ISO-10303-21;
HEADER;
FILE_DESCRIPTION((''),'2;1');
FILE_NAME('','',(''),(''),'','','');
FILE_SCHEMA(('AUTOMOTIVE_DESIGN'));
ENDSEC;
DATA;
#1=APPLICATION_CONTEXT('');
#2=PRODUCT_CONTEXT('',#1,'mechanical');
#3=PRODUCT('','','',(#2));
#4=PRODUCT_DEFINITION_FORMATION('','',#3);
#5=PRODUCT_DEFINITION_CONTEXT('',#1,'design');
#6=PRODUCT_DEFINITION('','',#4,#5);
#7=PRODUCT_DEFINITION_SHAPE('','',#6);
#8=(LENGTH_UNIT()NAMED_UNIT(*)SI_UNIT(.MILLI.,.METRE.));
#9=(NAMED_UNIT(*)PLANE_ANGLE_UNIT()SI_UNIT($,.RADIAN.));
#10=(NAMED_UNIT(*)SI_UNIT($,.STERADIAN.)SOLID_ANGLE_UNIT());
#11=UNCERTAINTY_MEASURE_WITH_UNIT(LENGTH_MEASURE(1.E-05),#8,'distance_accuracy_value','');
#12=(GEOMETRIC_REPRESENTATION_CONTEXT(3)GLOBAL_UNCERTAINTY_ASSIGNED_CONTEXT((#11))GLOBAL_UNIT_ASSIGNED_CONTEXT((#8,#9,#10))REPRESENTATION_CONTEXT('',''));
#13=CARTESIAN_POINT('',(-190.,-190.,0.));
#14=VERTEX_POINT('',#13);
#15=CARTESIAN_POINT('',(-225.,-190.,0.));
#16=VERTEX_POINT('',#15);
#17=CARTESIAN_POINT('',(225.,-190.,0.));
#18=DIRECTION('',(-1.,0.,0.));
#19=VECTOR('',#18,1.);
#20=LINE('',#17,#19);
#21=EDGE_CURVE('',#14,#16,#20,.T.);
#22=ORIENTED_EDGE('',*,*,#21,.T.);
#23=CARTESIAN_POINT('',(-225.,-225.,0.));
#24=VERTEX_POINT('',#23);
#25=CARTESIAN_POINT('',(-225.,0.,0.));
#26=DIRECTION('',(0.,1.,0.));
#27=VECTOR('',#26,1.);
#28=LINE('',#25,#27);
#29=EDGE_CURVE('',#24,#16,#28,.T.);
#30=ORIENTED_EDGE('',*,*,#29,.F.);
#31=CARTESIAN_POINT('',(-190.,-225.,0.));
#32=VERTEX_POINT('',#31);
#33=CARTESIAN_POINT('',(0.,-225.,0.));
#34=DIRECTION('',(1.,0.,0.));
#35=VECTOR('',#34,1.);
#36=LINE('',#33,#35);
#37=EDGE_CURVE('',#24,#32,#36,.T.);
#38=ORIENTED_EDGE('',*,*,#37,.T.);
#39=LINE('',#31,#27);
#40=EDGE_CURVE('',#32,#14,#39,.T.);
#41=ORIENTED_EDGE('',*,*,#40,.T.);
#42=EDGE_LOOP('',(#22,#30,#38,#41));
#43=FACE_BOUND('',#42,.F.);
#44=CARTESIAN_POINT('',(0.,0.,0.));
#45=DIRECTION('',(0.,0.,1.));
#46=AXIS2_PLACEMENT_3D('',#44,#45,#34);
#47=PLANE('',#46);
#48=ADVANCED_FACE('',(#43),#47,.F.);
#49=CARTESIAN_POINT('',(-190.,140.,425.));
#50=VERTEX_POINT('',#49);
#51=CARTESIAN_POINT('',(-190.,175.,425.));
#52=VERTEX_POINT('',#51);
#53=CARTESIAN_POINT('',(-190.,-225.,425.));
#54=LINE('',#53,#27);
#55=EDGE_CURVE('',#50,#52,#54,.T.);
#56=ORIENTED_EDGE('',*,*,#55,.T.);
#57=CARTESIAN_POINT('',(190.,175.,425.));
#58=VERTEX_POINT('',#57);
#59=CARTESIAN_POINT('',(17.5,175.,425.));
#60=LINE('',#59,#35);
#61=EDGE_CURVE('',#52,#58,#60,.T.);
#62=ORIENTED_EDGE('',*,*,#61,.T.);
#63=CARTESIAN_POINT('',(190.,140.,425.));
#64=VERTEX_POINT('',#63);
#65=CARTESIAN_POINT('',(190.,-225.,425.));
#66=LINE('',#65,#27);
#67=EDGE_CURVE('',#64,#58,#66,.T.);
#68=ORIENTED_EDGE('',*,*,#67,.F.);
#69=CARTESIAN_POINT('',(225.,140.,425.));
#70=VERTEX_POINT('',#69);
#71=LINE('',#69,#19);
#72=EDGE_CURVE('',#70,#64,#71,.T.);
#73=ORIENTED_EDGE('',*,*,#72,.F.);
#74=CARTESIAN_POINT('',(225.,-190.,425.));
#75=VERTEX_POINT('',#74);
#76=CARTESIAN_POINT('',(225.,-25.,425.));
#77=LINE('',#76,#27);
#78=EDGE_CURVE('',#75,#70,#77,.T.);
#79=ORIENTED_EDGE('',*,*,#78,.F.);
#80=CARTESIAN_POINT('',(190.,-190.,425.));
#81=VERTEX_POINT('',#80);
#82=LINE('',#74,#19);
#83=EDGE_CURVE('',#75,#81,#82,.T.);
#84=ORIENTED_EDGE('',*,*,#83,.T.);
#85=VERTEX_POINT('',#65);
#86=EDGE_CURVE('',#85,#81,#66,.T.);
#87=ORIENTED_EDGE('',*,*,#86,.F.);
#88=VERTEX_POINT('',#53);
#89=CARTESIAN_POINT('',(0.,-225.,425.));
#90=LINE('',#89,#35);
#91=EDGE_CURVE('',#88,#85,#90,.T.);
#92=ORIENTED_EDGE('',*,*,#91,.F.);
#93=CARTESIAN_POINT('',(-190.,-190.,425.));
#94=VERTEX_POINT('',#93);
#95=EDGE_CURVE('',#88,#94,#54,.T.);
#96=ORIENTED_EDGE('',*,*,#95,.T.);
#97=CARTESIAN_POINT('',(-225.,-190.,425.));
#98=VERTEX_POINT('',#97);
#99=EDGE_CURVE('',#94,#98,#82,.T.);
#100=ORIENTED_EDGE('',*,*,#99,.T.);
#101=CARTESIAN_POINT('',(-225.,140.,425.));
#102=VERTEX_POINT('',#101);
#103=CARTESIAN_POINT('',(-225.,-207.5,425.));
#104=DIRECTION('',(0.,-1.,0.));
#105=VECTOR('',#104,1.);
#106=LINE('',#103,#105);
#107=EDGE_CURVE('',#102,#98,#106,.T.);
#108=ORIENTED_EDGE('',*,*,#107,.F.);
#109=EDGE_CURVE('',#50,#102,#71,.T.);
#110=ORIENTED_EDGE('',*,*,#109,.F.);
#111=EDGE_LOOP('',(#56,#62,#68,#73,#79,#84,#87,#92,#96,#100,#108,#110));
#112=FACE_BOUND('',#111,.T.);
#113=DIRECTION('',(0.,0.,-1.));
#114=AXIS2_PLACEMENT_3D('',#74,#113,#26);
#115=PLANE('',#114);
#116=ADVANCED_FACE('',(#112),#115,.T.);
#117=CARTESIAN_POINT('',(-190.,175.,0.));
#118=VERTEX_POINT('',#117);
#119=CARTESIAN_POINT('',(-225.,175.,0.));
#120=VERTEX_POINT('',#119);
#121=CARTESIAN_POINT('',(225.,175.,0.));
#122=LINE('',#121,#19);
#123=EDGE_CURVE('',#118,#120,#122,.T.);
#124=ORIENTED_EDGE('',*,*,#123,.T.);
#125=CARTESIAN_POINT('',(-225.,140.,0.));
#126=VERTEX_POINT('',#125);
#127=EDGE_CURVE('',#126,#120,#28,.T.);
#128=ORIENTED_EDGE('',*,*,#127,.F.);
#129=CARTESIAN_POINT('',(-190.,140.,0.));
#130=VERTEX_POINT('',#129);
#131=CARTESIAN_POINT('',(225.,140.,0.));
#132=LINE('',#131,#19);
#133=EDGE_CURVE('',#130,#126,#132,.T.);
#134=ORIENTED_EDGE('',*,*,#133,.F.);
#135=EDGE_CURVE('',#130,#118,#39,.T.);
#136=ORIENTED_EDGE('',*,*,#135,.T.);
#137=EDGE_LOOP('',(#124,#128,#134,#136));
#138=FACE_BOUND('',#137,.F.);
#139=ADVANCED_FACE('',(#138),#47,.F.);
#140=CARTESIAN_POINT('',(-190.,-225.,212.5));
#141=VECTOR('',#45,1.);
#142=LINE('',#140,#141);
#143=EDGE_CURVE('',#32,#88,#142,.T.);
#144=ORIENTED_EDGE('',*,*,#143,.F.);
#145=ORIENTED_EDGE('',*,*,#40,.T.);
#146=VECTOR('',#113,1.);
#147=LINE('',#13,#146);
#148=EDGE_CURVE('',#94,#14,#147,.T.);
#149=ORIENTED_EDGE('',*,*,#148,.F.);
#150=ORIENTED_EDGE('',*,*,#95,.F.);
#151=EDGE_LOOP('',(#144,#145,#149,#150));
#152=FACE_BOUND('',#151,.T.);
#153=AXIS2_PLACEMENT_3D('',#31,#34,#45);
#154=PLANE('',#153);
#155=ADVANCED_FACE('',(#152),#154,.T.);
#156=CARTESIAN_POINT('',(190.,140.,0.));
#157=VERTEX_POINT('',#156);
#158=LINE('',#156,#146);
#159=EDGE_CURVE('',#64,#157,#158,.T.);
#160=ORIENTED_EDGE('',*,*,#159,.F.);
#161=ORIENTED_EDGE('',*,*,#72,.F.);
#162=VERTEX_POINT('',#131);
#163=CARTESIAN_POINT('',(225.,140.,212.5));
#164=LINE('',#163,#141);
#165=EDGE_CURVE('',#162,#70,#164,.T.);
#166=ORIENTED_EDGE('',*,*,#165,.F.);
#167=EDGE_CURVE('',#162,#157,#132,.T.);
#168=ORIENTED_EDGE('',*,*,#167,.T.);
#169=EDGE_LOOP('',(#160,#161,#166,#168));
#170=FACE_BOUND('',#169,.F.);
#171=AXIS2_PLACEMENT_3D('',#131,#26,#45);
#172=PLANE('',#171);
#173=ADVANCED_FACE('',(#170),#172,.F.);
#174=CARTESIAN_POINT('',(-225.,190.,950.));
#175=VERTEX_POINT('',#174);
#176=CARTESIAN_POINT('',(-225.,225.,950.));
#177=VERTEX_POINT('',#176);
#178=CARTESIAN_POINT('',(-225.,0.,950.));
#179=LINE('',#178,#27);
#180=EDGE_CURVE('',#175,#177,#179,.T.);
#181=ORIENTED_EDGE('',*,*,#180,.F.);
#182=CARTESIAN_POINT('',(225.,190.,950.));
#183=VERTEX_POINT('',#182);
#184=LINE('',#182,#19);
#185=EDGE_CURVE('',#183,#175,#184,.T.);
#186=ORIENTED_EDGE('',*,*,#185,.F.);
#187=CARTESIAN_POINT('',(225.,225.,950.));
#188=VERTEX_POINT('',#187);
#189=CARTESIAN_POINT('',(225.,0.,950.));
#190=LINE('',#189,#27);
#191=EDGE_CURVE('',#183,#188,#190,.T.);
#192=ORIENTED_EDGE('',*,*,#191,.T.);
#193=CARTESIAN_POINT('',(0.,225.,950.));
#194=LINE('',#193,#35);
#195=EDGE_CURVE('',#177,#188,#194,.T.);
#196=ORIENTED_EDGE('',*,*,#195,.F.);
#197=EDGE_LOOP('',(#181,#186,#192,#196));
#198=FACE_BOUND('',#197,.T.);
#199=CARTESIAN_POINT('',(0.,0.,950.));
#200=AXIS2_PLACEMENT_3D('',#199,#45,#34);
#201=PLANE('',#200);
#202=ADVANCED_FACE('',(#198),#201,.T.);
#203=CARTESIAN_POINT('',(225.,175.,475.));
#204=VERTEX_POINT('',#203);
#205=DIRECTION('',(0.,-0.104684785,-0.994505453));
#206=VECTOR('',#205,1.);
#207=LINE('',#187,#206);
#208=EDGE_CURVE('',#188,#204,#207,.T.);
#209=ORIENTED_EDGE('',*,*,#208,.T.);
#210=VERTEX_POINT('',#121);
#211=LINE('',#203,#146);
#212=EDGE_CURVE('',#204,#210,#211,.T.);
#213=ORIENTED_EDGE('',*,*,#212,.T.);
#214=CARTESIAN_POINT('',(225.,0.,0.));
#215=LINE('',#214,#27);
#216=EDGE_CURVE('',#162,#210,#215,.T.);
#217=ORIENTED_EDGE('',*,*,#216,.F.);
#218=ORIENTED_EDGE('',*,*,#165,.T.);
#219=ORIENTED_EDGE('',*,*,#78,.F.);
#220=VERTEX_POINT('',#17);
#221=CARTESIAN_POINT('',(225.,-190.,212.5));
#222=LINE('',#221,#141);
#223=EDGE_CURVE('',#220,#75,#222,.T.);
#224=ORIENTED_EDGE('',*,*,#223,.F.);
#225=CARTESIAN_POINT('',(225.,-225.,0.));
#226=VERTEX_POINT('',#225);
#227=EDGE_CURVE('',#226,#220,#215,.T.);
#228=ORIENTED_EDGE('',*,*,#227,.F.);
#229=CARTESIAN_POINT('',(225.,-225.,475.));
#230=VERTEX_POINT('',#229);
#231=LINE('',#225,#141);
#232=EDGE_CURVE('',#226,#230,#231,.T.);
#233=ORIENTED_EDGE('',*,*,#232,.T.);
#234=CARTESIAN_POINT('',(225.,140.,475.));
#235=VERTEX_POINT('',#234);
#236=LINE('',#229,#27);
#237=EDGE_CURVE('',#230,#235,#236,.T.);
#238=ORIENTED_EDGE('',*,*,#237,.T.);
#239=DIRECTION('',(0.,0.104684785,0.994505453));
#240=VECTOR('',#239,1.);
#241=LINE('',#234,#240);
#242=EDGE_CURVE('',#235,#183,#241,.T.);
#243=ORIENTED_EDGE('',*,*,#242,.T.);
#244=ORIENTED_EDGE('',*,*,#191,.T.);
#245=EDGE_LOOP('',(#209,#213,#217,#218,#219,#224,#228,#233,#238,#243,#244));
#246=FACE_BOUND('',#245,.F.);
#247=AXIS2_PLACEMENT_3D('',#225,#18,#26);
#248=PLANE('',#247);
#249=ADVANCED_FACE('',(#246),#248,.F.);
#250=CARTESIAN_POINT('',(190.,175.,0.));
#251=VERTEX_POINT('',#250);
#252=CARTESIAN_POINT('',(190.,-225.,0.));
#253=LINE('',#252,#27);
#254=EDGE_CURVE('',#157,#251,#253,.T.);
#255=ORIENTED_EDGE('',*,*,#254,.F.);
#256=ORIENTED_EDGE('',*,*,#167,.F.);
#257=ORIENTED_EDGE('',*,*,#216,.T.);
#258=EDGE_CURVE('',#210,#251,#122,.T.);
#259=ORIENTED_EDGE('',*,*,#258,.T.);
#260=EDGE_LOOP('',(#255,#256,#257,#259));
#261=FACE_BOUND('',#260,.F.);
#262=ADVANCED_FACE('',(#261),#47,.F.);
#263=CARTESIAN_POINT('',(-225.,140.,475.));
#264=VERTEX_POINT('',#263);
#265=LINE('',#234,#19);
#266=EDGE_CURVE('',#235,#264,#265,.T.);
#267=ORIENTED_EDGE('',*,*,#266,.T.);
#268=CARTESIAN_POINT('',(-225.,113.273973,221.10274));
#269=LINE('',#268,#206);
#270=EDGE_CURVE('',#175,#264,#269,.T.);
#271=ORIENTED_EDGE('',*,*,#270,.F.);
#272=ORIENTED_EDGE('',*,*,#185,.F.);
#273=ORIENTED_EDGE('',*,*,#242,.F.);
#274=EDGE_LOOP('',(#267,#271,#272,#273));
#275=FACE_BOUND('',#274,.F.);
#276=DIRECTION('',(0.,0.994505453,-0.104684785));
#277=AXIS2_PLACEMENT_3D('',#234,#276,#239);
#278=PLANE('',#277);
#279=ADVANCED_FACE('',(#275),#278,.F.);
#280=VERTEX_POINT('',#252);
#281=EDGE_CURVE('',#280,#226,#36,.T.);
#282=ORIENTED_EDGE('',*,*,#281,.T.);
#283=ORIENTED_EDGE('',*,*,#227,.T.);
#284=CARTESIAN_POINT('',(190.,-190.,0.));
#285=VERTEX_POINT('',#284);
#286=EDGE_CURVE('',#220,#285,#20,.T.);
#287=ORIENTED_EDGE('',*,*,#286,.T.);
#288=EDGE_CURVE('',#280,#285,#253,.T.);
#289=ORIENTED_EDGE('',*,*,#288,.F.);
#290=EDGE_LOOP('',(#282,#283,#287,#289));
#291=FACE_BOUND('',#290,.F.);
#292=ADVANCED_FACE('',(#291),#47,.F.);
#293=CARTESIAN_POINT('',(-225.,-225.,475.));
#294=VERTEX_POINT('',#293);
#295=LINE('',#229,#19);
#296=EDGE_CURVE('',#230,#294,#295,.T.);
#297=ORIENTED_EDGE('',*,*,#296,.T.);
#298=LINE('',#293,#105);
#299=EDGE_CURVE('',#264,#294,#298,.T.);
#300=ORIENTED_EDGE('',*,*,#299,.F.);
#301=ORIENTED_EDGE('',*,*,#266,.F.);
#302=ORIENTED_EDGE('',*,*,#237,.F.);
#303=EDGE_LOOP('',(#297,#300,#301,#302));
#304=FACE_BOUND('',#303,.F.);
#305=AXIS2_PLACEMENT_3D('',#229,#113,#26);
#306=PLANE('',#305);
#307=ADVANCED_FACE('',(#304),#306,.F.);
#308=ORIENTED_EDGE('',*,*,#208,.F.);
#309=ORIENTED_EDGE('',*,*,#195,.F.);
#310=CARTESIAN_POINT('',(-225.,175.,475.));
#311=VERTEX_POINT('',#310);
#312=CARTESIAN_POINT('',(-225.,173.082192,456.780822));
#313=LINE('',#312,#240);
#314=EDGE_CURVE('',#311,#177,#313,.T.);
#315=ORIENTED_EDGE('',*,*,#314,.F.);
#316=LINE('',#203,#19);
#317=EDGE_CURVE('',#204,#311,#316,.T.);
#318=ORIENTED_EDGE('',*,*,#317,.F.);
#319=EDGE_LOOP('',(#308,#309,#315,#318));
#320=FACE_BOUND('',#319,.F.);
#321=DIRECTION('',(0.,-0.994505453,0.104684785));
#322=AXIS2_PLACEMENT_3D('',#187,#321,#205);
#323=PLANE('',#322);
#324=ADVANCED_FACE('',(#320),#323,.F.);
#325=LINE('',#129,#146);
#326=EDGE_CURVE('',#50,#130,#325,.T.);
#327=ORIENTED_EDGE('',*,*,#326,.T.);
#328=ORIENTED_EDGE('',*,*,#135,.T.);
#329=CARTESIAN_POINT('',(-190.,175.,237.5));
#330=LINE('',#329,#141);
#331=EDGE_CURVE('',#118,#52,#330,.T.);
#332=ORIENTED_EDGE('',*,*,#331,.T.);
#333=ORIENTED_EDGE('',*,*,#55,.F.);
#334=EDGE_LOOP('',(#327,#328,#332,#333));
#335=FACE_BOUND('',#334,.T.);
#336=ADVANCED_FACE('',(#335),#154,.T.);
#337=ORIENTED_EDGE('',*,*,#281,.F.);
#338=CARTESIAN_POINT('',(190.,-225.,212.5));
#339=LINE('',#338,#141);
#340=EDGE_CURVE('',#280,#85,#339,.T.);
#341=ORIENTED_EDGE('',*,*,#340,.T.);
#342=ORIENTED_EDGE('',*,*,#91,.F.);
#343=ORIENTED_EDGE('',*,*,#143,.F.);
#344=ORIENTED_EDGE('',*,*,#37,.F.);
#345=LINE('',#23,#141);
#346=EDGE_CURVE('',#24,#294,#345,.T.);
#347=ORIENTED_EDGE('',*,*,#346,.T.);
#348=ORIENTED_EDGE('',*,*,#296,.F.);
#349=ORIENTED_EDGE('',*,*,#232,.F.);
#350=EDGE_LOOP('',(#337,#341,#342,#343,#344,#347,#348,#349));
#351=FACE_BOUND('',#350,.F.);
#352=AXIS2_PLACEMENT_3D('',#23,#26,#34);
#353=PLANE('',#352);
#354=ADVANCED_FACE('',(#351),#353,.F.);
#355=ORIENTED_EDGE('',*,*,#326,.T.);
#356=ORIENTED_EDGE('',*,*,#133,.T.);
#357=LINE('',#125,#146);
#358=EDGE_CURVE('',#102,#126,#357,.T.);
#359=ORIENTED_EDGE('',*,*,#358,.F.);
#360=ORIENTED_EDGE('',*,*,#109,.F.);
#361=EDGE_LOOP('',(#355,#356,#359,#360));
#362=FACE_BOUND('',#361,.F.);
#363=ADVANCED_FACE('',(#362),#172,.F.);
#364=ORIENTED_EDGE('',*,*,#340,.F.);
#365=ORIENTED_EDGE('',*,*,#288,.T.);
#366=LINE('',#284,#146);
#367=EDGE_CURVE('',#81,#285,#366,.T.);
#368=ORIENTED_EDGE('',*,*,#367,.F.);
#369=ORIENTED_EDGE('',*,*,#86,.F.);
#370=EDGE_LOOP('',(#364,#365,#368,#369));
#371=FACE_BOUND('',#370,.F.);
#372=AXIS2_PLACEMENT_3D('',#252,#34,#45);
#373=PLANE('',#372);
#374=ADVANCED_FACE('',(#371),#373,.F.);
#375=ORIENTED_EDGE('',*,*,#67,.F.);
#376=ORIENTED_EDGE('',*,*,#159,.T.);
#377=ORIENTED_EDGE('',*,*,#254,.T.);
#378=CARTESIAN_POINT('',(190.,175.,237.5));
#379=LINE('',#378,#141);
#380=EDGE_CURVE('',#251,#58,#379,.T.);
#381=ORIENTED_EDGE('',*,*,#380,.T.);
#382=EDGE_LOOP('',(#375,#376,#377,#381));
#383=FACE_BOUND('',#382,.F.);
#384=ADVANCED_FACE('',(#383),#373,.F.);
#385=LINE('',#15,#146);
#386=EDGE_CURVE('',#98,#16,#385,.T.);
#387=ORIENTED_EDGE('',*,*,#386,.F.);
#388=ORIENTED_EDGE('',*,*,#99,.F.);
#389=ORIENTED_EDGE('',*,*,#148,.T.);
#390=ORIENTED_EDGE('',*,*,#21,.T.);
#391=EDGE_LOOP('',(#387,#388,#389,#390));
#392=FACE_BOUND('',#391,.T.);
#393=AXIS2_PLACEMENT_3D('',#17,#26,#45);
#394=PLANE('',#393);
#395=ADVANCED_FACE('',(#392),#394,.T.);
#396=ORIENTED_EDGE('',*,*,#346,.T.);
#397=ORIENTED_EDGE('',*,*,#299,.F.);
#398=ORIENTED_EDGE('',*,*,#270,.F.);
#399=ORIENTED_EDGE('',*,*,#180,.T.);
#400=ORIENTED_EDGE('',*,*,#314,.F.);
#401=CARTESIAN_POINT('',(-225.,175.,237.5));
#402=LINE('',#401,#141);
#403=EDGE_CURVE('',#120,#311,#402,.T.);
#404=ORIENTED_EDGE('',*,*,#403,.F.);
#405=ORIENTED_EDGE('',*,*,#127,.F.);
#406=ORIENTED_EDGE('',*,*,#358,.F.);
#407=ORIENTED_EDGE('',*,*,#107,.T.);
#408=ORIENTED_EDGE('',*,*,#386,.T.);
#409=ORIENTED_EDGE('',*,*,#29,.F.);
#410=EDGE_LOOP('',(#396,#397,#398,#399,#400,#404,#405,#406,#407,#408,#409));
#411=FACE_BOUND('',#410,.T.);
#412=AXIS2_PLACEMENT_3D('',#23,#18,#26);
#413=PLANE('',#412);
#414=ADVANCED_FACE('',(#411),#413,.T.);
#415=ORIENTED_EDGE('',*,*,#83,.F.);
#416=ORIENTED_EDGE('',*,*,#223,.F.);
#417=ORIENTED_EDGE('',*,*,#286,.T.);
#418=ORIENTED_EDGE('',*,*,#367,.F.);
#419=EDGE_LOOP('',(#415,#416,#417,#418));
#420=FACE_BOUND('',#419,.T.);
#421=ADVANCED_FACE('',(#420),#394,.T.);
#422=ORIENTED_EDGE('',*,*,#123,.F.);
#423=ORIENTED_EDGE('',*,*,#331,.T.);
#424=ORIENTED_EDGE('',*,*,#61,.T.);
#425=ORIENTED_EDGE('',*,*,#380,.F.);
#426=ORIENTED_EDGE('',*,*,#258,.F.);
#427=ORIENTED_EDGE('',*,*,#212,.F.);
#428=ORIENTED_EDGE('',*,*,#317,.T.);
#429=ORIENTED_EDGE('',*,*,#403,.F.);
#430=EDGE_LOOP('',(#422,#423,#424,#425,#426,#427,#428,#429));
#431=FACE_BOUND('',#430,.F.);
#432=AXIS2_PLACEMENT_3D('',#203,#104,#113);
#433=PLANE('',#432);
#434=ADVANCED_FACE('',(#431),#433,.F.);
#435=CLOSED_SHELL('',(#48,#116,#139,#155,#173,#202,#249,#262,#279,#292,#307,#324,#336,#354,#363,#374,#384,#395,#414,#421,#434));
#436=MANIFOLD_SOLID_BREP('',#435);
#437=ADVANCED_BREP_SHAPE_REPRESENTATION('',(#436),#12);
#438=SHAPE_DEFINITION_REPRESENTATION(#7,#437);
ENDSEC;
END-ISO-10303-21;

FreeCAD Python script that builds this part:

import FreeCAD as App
import Part
import Sketcher

V = App.Vector
Q = App.Units.Quantity

doc = App.newDocument("Part")
body = doc.addObject("PartDesign::Body", "Body")

# Sketch on XY plane
sketch1 = body.newObject("Sketcher::SketchObject", "Sketch")
sketch1.AttachmentSupport = (doc.getObject("XY_Plane"), [""])
sketch1.MapMode = "FlatFace"
sketch1.addGeometry(Part.LineSegment(V(-225, 225, 0), V(-225, -225, 0)), False)
sketch1.addGeometry(Part.LineSegment(V(-225, -225, 0), V(225, -225, 0)), False)
sketch1.addGeometry(Part.LineSegment(V(225, -225, 0), V(225, 225, 0)), False)
sketch1.addGeometry(Part.LineSegment(V(225, 225, 0), V(-225, 225, 0)), False)
sketch1.addConstraint(Sketcher.Constraint("Coincident", 0, 2, 1, 1))
sketch1.addConstraint(Sketcher.Constraint("Coincident", 1, 2, 2, 1))
sketch1.addConstraint(Sketcher.Constraint("Coincident", 2, 2, 3, 1))
sketch1.addConstraint(Sketcher.Constraint("Coincident", 3, 2, 0, 1))
sketch1.addConstraint(Sketcher.Constraint("Vertical", 0))
sketch1.addConstraint(Sketcher.Constraint("Horizontal", 1))
sketch1.addConstraint(Sketcher.Constraint("Vertical", 2))
sketch1.addConstraint(Sketcher.Constraint("Horizontal", 3))
sketch1.addConstraint(Sketcher.Constraint("Symmetric", 0, 2, 2, 2, -1, 1))
sketch1.addConstraint(Sketcher.Constraint("Equal", 3, 0))
sketch1.addConstraint(Sketcher.Constraint("DistanceX", 1, 1, 1, 2, Q("450 mm")))
pad1 = body.newObject("PartDesign::Pad", "Pad")
pad1.Profile = sketch1
pad1.Length = 950

# Sketch on YZ plane
sketch2 = body.newObject("Sketcher::SketchObject", "Sketch001")
sketch2.AttachmentSupport = (doc.getObject("YZ_Plane"), [""])
sketch2.MapMode = "FlatFace"
sketch2.AttachmentOffset = App.Placement(V(0, 0, 225), App.Rotation())
sketch2.addGeometry(Part.LineSegment(V(-225, 950, 0), V(-225, 475, 0)), False)
sketch2.addGeometry(Part.LineSegment(V(-225, 475, 0), V(140, 475, 0)), False)
sketch2.addGeometry(Part.LineSegment(V(140, 475, 0), V(190, 950, 0)), False)
sketch2.addGeometry(Part.LineSegment(V(190, 950, 0), V(-225, 950, 0)), False)
sketch2.addGeometry(Part.LineSegment(V(-190, 425, 0), V(-190, 0, 0)), False)
sketch2.addGeometry(Part.LineSegment(V(-190, 0, 0), V(140, 0, 0)), False)
sketch2.addGeometry(Part.LineSegment(V(140, 0, 0), V(140, 425, 0)), False)
sketch2.addGeometry(Part.LineSegment(V(140, 425, 0), V(-190, 425, 0)), False)
sketch2.addGeometry(Part.LineSegment(V(175, 0, 0), V(225, 0, 0)), False)
sketch2.addGeometry(Part.LineSegment(V(225, 0, 0), V(225, 950, 0)), False)
sketch2.addGeometry(Part.LineSegment(V(225, 950, 0), V(175, 475, 0)), False)
sketch2.addGeometry(Part.LineSegment(V(175, 475, 0), V(175, 0, 0)), False)
sketch2.addConstraint(Sketcher.Constraint("Coincident", 0, 2, 1, 1))
sketch2.addConstraint(Sketcher.Constraint("Coincident", 1, 2, 2, 1))
sketch2.addConstraint(Sketcher.Constraint("Coincident", 2, 2, 3, 1))
sketch2.addConstraint(Sketcher.Constraint("Coincident", 3, 2, 0, 1))
sketch2.addConstraint(Sketcher.Constraint("Coincident", 4, 2, 5, 1))
sketch2.addConstraint(Sketcher.Constraint("Coincident", 5, 2, 6, 1))
sketch2.addConstraint(Sketcher.Constraint("Coincident", 6, 2, 7, 1))
sketch2.addConstraint(Sketcher.Constraint("Coincident", 7, 2, 4, 1))
sketch2.addConstraint(Sketcher.Constraint("Coincident", 8, 2, 9, 1))
sketch2.addConstraint(Sketcher.Constraint("Coincident", 9, 2, 10, 1))
sketch2.addConstraint(Sketcher.Constraint("Coincident", 10, 2, 11, 1))
sketch2.addConstraint(Sketcher.Constraint("Coincident", 11, 2, 8, 1))
sketch2.addConstraint(Sketcher.Constraint("Vertical", 0))
sketch2.addConstraint(Sketcher.Constraint("Horizontal", 1))
sketch2.addConstraint(Sketcher.Constraint("Horizontal", 3))
sketch2.addConstraint(Sketcher.Constraint("Vertical", 4))
sketch2.addConstraint(Sketcher.Constraint("Horizontal", 5))
sketch2.addConstraint(Sketcher.Constraint("Vertical", 6))
sketch2.addConstraint(Sketcher.Constraint("Horizontal", 7))
sketch2.addConstraint(Sketcher.Constraint("Horizontal", 8))
sketch2.addConstraint(Sketcher.Constraint("Vertical", 9))
sketch2.addConstraint(Sketcher.Constraint("Vertical", 11))
sketch2.addConstraint(Sketcher.Constraint("Symmetric", 3, 2, 9, 2, -2))
sketch2.addConstraint(Sketcher.Constraint("PointOnObject", 4, 2, -1))
sketch2.addConstraint(Sketcher.Constraint("PointOnObject", 8, 2, -1))
sketch2.addConstraint(Sketcher.Constraint("Parallel", 2, 10))
sketch2.addConstraint(Sketcher.Constraint("Horizontal", 1, 2, 10, 2))
sketch2.addConstraint(Sketcher.Constraint("Vertical", 1, 2, 5, 2))
sketch2.addConstraint(Sketcher.Constraint("Equal", 0, 11))
sketch2.addConstraint(Sketcher.Constraint("DistanceX", 1, 1, 1, 2, Q("365 mm")))
sketch2.addConstraint(Sketcher.Constraint("DistanceX", 3, 2, 3, 1, Q("415 mm")))
sketch2.addConstraint(Sketcher.Constraint("DistanceX", 5, 1, 5, 2, Q("330 mm")))
sketch2.addConstraint(Sketcher.Constraint("DistanceY", 0, 2, 0, 1, Q("475 mm")))
sketch2.addConstraint(Sketcher.Constraint("DistanceY", 4, 2, 4, 1, Q("425 mm")))
sketch2.addConstraint(Sketcher.Constraint("DistanceX", 0, 2, -1, 1, Q("225 mm")))
pocket1 = body.newObject("PartDesign::Pocket", "Pocket")
pocket1.Profile = sketch2
pocket1.Type = "ThroughAll"

# Sketch on XZ plane
sketch3 = body.newObject("Sketcher::SketchObject", "Sketch002")
sketch3.AttachmentSupport = (doc.getObject("XZ_Plane"), [""])
sketch3.MapMode = "FlatFace"
sketch3.AttachmentOffset = App.Placement(V(0, 0, 225), App.Rotation())
sketch3.addGeometry(Part.LineSegment(V(-190, 425, 0), V(-190, 0, 0)), False)
sketch3.addGeometry(Part.LineSegment(V(-190, 0, 0), V(190, 0, 0)), False)
sketch3.addGeometry(Part.LineSegment(V(190, 0, 0), V(190, 425, 0)), False)
sketch3.addGeometry(Part.LineSegment(V(190, 425, 0), V(-190, 425, 0)), False)
sketch3.addConstraint(Sketcher.Constraint("Coincident", 0, 2, 1, 1))
sketch3.addConstraint(Sketcher.Constraint("Coincident", 1, 2, 2, 1))
sketch3.addConstraint(Sketcher.Constraint("Coincident", 2, 2, 3, 1))
sketch3.addConstraint(Sketcher.Constraint("Coincident", 3, 2, 0, 1))
sketch3.addConstraint(Sketcher.Constraint("Vertical", 0))
sketch3.addConstraint(Sketcher.Constraint("Horizontal", 1))
sketch3.addConstraint(Sketcher.Constraint("Vertical", 2))
sketch3.addConstraint(Sketcher.Constraint("Horizontal", 3))
sketch3.addConstraint(Sketcher.Constraint("Symmetric", 0, 2, 1, 2, -1, 1))
sketch3.addConstraint(Sketcher.Constraint("DistanceX", 1, 1, 1, 2, Q("380 mm")))
sketch3.addConstraint(Sketcher.Constraint("DistanceY", 0, 2, 0, 1, Q("425 mm")))
pocket2 = body.newObject("PartDesign::Pocket", "Pocket001")
pocket2.Profile = sketch3
pocket2.Type = "ThroughAll"

doc.recompute()
